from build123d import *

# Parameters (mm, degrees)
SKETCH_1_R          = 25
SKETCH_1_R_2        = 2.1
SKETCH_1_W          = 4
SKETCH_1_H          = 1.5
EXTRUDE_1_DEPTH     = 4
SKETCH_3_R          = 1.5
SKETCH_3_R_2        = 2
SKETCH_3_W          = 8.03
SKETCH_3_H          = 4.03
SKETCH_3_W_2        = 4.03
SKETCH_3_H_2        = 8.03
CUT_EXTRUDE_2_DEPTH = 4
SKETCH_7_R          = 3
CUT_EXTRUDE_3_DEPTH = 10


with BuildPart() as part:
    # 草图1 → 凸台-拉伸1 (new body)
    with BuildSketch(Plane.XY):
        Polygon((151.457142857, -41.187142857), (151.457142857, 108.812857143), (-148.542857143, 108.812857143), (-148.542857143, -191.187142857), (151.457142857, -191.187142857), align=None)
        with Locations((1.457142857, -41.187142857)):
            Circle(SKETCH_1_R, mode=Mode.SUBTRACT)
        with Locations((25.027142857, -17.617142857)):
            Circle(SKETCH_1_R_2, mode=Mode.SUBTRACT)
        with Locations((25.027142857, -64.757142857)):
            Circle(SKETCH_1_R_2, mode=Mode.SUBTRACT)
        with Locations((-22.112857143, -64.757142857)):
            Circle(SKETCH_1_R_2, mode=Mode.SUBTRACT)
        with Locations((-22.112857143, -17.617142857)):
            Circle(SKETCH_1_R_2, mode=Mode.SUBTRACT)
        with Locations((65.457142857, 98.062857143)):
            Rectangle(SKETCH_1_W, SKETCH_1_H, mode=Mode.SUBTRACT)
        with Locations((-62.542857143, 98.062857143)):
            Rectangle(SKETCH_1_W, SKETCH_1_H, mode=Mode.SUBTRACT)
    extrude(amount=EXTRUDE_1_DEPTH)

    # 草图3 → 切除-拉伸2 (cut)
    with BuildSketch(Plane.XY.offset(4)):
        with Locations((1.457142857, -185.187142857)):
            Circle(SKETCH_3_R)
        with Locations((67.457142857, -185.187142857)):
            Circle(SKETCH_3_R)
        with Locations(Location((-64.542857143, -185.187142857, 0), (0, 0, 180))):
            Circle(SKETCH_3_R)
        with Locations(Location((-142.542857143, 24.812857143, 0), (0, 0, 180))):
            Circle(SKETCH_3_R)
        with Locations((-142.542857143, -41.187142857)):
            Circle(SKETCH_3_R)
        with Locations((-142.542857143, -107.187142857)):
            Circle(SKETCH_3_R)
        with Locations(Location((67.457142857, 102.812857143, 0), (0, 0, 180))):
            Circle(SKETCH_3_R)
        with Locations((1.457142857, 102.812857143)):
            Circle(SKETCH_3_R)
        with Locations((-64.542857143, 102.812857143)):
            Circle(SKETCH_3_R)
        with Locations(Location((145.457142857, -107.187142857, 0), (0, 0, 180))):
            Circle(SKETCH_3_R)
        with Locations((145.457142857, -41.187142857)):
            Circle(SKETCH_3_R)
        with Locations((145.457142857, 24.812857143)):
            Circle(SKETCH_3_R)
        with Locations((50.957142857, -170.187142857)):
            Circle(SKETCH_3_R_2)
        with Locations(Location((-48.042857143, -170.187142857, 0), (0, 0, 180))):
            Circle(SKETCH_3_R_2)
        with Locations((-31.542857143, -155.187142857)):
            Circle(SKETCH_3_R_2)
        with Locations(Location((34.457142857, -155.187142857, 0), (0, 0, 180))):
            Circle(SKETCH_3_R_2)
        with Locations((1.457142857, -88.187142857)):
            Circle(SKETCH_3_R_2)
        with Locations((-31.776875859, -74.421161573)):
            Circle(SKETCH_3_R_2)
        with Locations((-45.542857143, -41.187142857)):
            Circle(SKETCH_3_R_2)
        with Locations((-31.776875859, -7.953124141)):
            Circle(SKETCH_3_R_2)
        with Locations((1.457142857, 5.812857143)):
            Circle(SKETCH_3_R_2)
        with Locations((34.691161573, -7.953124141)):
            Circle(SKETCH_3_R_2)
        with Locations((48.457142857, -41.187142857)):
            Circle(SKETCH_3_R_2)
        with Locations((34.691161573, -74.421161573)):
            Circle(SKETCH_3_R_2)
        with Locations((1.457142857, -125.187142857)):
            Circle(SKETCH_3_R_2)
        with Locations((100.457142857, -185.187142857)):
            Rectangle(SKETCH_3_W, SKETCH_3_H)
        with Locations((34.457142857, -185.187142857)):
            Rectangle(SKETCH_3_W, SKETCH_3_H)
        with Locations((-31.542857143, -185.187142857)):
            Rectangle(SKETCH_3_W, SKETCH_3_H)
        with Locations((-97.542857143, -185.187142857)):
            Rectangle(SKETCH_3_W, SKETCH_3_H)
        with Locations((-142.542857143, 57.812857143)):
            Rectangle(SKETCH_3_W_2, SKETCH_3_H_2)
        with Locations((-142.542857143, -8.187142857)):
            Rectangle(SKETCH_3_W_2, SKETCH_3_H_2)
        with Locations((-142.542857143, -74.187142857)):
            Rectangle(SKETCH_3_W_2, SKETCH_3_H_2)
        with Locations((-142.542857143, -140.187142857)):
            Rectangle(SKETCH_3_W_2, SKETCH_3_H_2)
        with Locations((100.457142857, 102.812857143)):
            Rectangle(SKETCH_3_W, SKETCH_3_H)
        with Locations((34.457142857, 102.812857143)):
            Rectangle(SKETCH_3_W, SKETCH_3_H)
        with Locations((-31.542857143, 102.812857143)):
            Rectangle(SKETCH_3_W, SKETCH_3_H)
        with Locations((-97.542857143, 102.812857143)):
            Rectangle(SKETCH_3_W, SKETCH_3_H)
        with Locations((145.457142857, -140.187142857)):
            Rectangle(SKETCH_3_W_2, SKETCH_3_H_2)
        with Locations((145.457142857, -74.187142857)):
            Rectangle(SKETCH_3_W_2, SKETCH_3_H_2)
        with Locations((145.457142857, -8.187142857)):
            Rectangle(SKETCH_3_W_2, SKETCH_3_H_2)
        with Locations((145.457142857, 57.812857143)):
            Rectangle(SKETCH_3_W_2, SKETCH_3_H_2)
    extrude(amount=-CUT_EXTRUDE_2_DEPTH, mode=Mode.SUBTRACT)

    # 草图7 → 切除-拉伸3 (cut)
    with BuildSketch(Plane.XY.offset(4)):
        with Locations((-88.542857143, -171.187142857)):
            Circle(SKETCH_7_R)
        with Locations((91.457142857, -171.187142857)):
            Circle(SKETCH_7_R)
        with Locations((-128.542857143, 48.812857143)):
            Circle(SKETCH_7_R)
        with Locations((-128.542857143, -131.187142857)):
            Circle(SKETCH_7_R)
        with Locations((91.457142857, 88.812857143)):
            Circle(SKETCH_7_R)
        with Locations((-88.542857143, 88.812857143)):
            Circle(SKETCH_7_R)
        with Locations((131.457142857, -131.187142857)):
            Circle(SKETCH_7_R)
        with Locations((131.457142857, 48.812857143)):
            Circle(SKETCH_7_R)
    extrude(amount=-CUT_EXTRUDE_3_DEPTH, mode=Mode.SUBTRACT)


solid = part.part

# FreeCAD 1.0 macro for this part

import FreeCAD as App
import Part
import Sketcher

V = App.Vector
Q = App.Units.Quantity

doc = App.newDocument("Part")
body = doc.addObject("PartDesign::Body", "Body")

sketch1 = body.newObject("Sketcher::SketchObject", "Sketch")
sketch1.AttachmentSupport = (doc.getObject("XY_Plane"), [""])
sketch1.MapMode = "FlatFace"
sketch1.addGeometry([
    Part.LineSegment(V(151.5, 108.8, 0), V(-148.5, 108.8, 0)),
    Part.LineSegment(V(-148.5, 108.8, 0), V(-148.5, -191.2, 0)),
    Part.LineSegment(V(-148.5, -191.2, 0), V(151.5, -191.2, 0)),
    Part.LineSegment(V(151.5, -191.2, 0), V(151.5, 108.8, 0)),
    Part.Circle(V(-22.1, -64.8, 0), V(0, 0, 1), 2.1),
    Part.Circle(V(-22.1, -17.6, 0), V(0, 0, 1), 2.1),
    Part.Circle(V(25, -64.8, 0), V(0, 0, 1), 2.1),
    Part.Circle(V(1.5, -41.2, 0), V(0, 0, 1), 25),
    Part.Circle(V(25, -17.6, 0), V(0, 0, 1), 2.1),
    Part.LineSegment(V(-60.5, 97.3, 0), V(-64.5, 97.3, 0)),
    Part.LineSegment(V(-64.5, 97.3, 0), V(-64.5, 98.8, 0)),
    Part.LineSegment(V(-64.5, 98.8, 0), V(-60.5, 98.8, 0)),
    Part.LineSegment(V(-60.5, 98.8, 0), V(-60.5, 97.3, 0)),
    Part.LineSegment(V(67.5, 97.3, 0), V(63.5, 97.3, 0)),
    Part.LineSegment(V(63.5, 97.3, 0), V(63.5, 98.8, 0)),
    Part.LineSegment(V(63.5, 98.8, 0), V(67.5, 98.8, 0)),
    Part.LineSegment(V(67.5, 98.8, 0), V(67.5, 97.3, 0)),
], False)
sketch1.addConstraint([
    Sketcher.Constraint("Coincident", 0, 2, 1, 1),
    Sketcher.Constraint("Coincident", 1, 2, 2, 1),
    Sketcher.Constraint("Coincident", 2, 2, 3, 1),
    Sketcher.Constraint("Coincident", 3, 2, 0, 1),
    Sketcher.Constraint("Coincident", 9, 2, 10, 1),
    Sketcher.Constraint("Coincident", 10, 2, 11, 1),
    Sketcher.Constraint("Coincident", 11, 2, 12, 1),
    Sketcher.Constraint("Coincident", 12, 2, 9, 1),
    Sketcher.Constraint("Coincident", 13, 2, 14, 1),
    Sketcher.Constraint("Coincident", 14, 2, 15, 1),
    Sketcher.Constraint("Coincident", 15, 2, 16, 1),
    Sketcher.Constraint("Coincident", 16, 2, 13, 1),
    Sketcher.Constraint("Horizontal", 0),
    Sketcher.Constraint("Vertical", 1),
    Sketcher.Constraint("Horizontal", 2),
    Sketcher.Constraint("Vertical", 3),
    Sketcher.Constraint("Horizontal", 9),
    Sketcher.Constraint("Vertical", 10),
    Sketcher.Constraint("Horizontal", 11),
    Sketcher.Constraint("Vertical", 12),
    Sketcher.Constraint("Horizontal", 13),
    Sketcher.Constraint("Vertical", 14),
    Sketcher.Constraint("Horizontal", 15),
    Sketcher.Constraint("Vertical", 16),
    Sketcher.Constraint("Equal", 4, 5),
    Sketcher.Constraint("Equal", 5, 6),
    Sketcher.Constraint("Equal", 6, 8),
    Sketcher.Constraint("Horizontal", 4, 3, 6, 3),
    Sketcher.Constraint("Horizontal", 5, 3, 8, 3),
    Sketcher.Constraint("Horizontal", 12, 2, 13, 2),
    Sketcher.Constraint("Horizontal", 11, 2, 14, 2),
    Sketcher.Constraint("Vertical", 4, 3, 5, 3),
    Sketcher.Constraint("Vertical", 6, 3, 8, 3),
    Sketcher.Constraint("Equal", 11, 13),
    Sketcher.Constraint("Equal", 2, 1),
    Sketcher.Constraint("Diameter", 7, Q("50 mm")),
    Sketcher.Constraint("Diameter", 4, Q("4.2 mm")),
    Sketcher.Constraint("DistanceX", 0, 2, 0, 1, Q("300 mm")),
    Sketcher.Constraint("DistanceX", 9, 2, 9, 1, Q("4 mm")),
    Sketcher.Constraint("DistanceY", 10, 1, 10, 2, Q("1.5 mm")),
    Sketcher.Constraint("DistanceX", 0, 2, 7, 3, Q("150 mm")),
    Sketcher.Constraint("DistanceY", 7, 3, 0, 2, Q("150 mm")),
    Sketcher.Constraint("DistanceX", 0, 2, 9, 2, Q("84 mm")),
    Sketcher.Constraint("DistanceY", 10, 2, 0, 2, Q("10 mm")),
    Sketcher.Constraint("DistanceX", 13, 2, 3, 2, Q("88 mm")),
    Sketcher.Constraint("DistanceY", 4, 3, 5, 3, Q("47.14 mm")),
    Sketcher.Constraint("DistanceX", 4, 3, 6, 3, Q("47.14 mm")),
    Sketcher.Constraint("DistanceX", 5, 3, 7, 3, Q("23.57 mm")),
    Sketcher.Constraint("DistanceY", 7, 3, 5, 3, Q("23.57 mm")),
    Sketcher.Constraint("DistanceX", 4, 3, -1, 1, Q("22.112857 mm")),
    Sketcher.Constraint("DistanceY", 4, 3, -1, 1, Q("64.757143 mm")),
])
pad1 = body.newObject("PartDesign::Pad", "Pad")
pad1.Profile = sketch1
pad1.Length = 4

sketch2 = body.newObject("Sketcher::SketchObject", "Sketch001")
sketch2.AttachmentSupport = (doc.getObject("XY_Plane"), [""])
sketch2.MapMode = "FlatFace"
sketch2.AttachmentOffset = App.Placement(V(0, 0, 4), App.Rotation())
sketch2.addGeometry([
    Part.Circle(V(1.5, -185.2, 0), V(0, 0, 1), 1.5),
    Part.Circle(V(67.5, -185.2, 0), V(0, 0, 1), 1.5),
    Part.Circle(V(-64.5, -185.2, 0), V(0, 0, 1), 1.5),
    Part.Circle(V(-142.5, 24.8, 0), V(0, 0, 1), 1.5),
    Part.Circle(V(-142.5, -41.2, 0), V(0, 0, 1), 1.5),
    Part.Circle(V(-142.5, -107.2, 0), V(0, 0, 1), 1.5),
    Part.Circle(V(67.5, 102.8, 0), V(0, 0, 1), 1.5),
    Part.Circle(V(1.5, 102.8, 0), V(0, 0, 1), 1.5),
    Part.Circle(V(-64.5, 102.8, 0), V(0, 0, 1), 1.5),
    Part.Circle(V(145.5, -107.2, 0), V(0, 0, 1), 1.5),
    Part.Circle(V(145.5, -41.2, 0), V(0, 0, 1), 1.5),
    Part.Circle(V(145.5, 24.8, 0), V(0, 0, 1), 1.5),
    Part.Circle(V(51, -170.2, 0), V(0, 0, 1), 2),
    Part.Circle(V(-48, -170.2, 0), V(0, 0, 1), 2),
    Part.Circle(V(-31.5, -155.2, 0), V(0, 0, 1), 2),
    Part.Circle(V(34.5, -155.2, 0), V(0, 0, 1), 2),
    Part.Circle(V(1.5, -88.2, 0), V(0, 0, 1), 2),
    Part.Circle(V(-31.8, -74.4, 0), V(0, 0, 1), 2),
    Part.Circle(V(-45.5, -41.2, 0), V(0, 0, 1), 2),
    Part.Circle(V(-31.8, -8, 0), V(0, 0, 1), 2),
    Part.Circle(V(1.5, 5.8, 0), V(0, 0, 1), 2),
    Part.Circle(V(34.7, -8, 0), V(0, 0, 1), 2),
    Part.Circle(V(48.5, -41.2, 0), V(0, 0, 1), 2),
    Part.Circle(V(34.7, -74.4, 0), V(0, 0, 1), 2),
    Part.Circle(V(1.5, -125.2, 0), V(0, 0, 1), 2),
    Part.LineSegment(V(96.4, -183.2, 0), V(96.4, -187.2, 0)),
    Part.LineSegment(V(96.4, -187.2, 0), V(104.5, -187.2, 0)),
    Part.LineSegment(V(104.5, -187.2, 0), V(104.5, -183.2, 0)),
    Part.LineSegment(V(104.5, -183.2, 0), V(96.4, -183.2, 0)),
    Part.LineSegment(V(30.4, -183.2, 0), V(30.4, -187.2, 0)),
    Part.LineSegment(V(30.4, -187.2, 0), V(38.5, -187.2, 0)),
    Part.LineSegment(V(38.5, -187.2, 0), V(38.5, -183.2, 0)),
    Part.LineSegment(V(38.5, -183.2, 0), V(30.4, -183.2, 0)),
    Part.LineSegment(V(-35.6, -183.2, 0), V(-35.6, -187.2, 0)),
    Part.LineSegment(V(-35.6, -187.2, 0), V(-27.5, -187.2, 0)),
    Part.LineSegment(V(-27.5, -187.2, 0), V(-27.5, -183.2, 0)),
    Part.LineSegment(V(-27.5, -183.2, 0), V(-35.6, -183.2, 0)),
    Part.LineSegment(V(-101.6, -183.2, 0), V(-101.6, -187.2, 0)),
    Part.LineSegment(V(-101.6, -187.2, 0), V(-93.5, -187.2, 0)),
    Part.LineSegment(V(-93.5, -187.2, 0), V(-93.5, -183.2, 0)),
    Part.LineSegment(V(-93.5, -183.2, 0), V(-101.6, -183.2, 0)),
    Part.LineSegment(V(-144.6, 61.8, 0), V(-144.6, 53.8, 0)),
    Part.LineSegment(V(-144.6, 53.8, 0), V(-140.5, 53.8, 0)),
    Part.LineSegment(V(-140.5, 53.8, 0), V(-140.5, 61.8, 0)),
    Part.LineSegment(V(-140.5, 61.8, 0), V(-144.6, 61.8, 0)),
    Part.LineSegment(V(-144.6, -4.2, 0), V(-144.6, -12.2, 0)),
    Part.LineSegment(V(-144.6, -12.2, 0), V(-140.5, -12.2, 0)),
    Part.LineSegment(V(-140.5, -12.2, 0), V(-140.5, -4.2, 0)),
    Part.LineSegment(V(-140.5, -4.2, 0), V(-144.6, -4.2, 0)),
    Part.LineSegment(V(-144.6, -70.2, 0), V(-144.6, -78.2, 0)),
    Part.LineSegment(V(-144.6, -78.2, 0), V(-140.5, -78.2, 0)),
    Part.LineSegment(V(-140.5, -78.2, 0), V(-140.5, -70.2, 0)),
    Part.LineSegment(V(-140.5, -70.2, 0), V(-144.6, -70.2, 0)),
    Part.LineSegment(V(-144.6, -136.2, 0), V(-144.6, -144.2, 0)),
    Part.LineSegment(V(-144.6, -144.2, 0), V(-140.5, -144.2, 0)),
    Part.LineSegment(V(-140.5, -144.2, 0), V(-140.5, -136.2, 0)),
    Part.LineSegment(V(-140.5, -136.2, 0), V(-144.6, -136.2, 0)),
    Part.LineSegment(V(96.4, 104.8, 0), V(96.4, 100.8, 0)),
    Part.LineSegment(V(96.4, 100.8, 0), V(104.5, 100.8, 0)),
    Part.LineSegment(V(104.5, 100.8, 0), V(104.5, 104.8, 0)),
    Part.LineSegment(V(104.5, 104.8, 0), V(96.4, 104.8, 0)),
    Part.LineSegment(V(30.4, 104.8, 0), V(30.4, 100.8, 0)),
    Part.LineSegment(V(30.4, 100.8, 0), V(38.5, 100.8, 0)),
    Part.LineSegment(V(38.5, 100.8, 0), V(38.5, 104.8, 0)),
    Part.LineSegment(V(38.5, 104.8, 0), V(30.4, 104.8, 0)),
    Part.LineSegment(V(-35.6, 104.8, 0), V(-35.6, 100.8, 0)),
    Part.LineSegment(V(-35.6, 100.8, 0), V(-27.5, 100.8, 0)),
    Part.LineSegment(V(-27.5, 100.8, 0), V(-27.5, 104.8, 0)),
    Part.LineSegment(V(-27.5, 104.8, 0), V(-35.6, 104.8, 0)),
    Part.LineSegment(V(-101.6, 104.8, 0), V(-101.6, 100.8, 0)),
    Part.LineSegment(V(-101.6, 100.8, 0), V(-93.5, 100.8, 0)),
    Part.LineSegment(V(-93.5, 100.8, 0), V(-93.5, 104.8, 0)),
    Part.LineSegment(V(-93.5, 104.8, 0), V(-101.6, 104.8, 0)),
    Part.LineSegment(V(143.4, -136.2, 0), V(143.4, -144.2, 0)),
    Part.LineSegment(V(143.4, -144.2, 0), V(147.5, -144.2, 0)),
    Part.LineSegment(V(147.5, -144.2, 0), V(147.5, -136.2, 0)),
    Part.LineSegment(V(147.5, -136.2, 0), V(143.4, -136.2, 0)),
    Part.LineSegment(V(143.4, -70.2, 0), V(143.4, -78.2, 0)),
    Part.LineSegment(V(143.4, -78.2, 0), V(147.5, -78.2, 0)),
    Part.LineSegment(V(147.5, -78.2, 0), V(147.5, -70.2, 0)),
    Part.LineSegment(V(147.5, -70.2, 0), V(143.4, -70.2, 0)),
    Part.LineSegment(V(143.4, -4.2, 0), V(143.4, -12.2, 0)),
    Part.LineSegment(V(143.4, -12.2, 0), V(147.5, -12.2, 0)),
    Part.LineSegment(V(147.5, -12.2, 0), V(147.5, -4.2, 0)),
    Part.LineSegment(V(147.5, -4.2, 0), V(143.4, -4.2, 0)),
    Part.LineSegment(V(143.4, 61.8, 0), V(143.4, 53.8, 0)),
    Part.LineSegment(V(143.4, 53.8, 0), V(147.5, 53.8, 0)),
    Part.LineSegment(V(147.5, 53.8, 0), V(147.5, 61.8, 0)),
    Part.LineSegment(V(147.5, 61.8, 0), V(143.4, 61.8, 0)),
], False)
sketch2.addConstraint([
    Sketcher.Constraint("Coincident", 25, 2, 26, 1),
    Sketcher.Constraint("Coincident", 26, 2, 27, 1),
    Sketcher.Constraint("Coincident", 27, 2, 28, 1),
    Sketcher.Constraint("Coincident", 28, 2, 25, 1),
    Sketcher.Constraint("Coincident", 29, 2, 30, 1),
    Sketcher.Constraint("Coincident", 30, 2, 31, 1),
    Sketcher.Constraint("Coincident", 31, 2, 32, 1),
    Sketcher.Constraint("Coincident", 32, 2, 29, 1),
    Sketcher.Constraint("Coincident", 33, 2, 34, 1),
    Sketcher.Constraint("Coincident", 34, 2, 35, 1),
    Sketcher.Constraint("Coincident", 35, 2, 36, 1),
    Sketcher.Constraint("Coincident", 36, 2, 33, 1),
    Sketcher.Constraint("Coincident", 37, 2, 38, 1),
    Sketcher.Constraint("Coincident", 38, 2, 39, 1),
    Sketcher.Constraint("Coincident", 39, 2, 40, 1),
    Sketcher.Constraint("Coincident", 40, 2, 37, 1),
    Sketcher.Constraint("Coincident", 41, 2, 42, 1),
    Sketcher.Constraint("Coincident", 42, 2, 43, 1),
    Sketcher.Constraint("Coincident", 43, 2, 44, 1),
    Sketcher.Constraint("Coincident", 44, 2, 41, 1),
    Sketcher.Constraint("Coincident", 45, 2, 46, 1),
    Sketcher.Constraint("Coincident", 46, 2, 47, 1),
    Sketcher.Constraint("Coincident", 47, 2, 48, 1),
    Sketcher.Constraint("Coincident", 48, 2, 45, 1),
    Sketcher.Constraint("Coincident", 49, 2, 50, 1),
    Sketcher.Constraint("Coincident", 50, 2, 51, 1),
    Sketcher.Constraint("Coincident", 51, 2, 52, 1),
    Sketcher.Constraint("Coincident", 52, 2, 49, 1),
    Sketcher.Constraint("Coincident", 53, 2, 54, 1),
    Sketcher.Constraint("Coincident", 54, 2, 55, 1),
    Sketcher.Constraint("Coincident", 55, 2, 56, 1),
    Sketcher.Constraint("Coincident", 56, 2, 53, 1),
    Sketcher.Constraint("Coincident", 57, 2, 58, 1),
    Sketcher.Constraint("Coincident", 58, 2, 59, 1),
    Sketcher.Constraint("Coincident", 59, 2, 60, 1),
    Sketcher.Constraint("Coincident", 60, 2, 57, 1),
    Sketcher.Constraint("Coincident", 61, 2, 62, 1),
    Sketcher.Constraint("Coincident", 62, 2, 63, 1),
    Sketcher.Constraint("Coincident", 63, 2, 64, 1),
    Sketcher.Constraint("Coincident", 64, 2, 61, 1),
    Sketcher.Constraint("Coincident", 65, 2, 66, 1),
    Sketcher.Constraint("Coincident", 66, 2, 67, 1),
    Sketcher.Constraint("Coincident", 67, 2, 68, 1),
    Sketcher.Constraint("Coincident", 68, 2, 65, 1),
    Sketcher.Constraint("Coincident", 69, 2, 70, 1),
    Sketcher.Constraint("Coincident", 70, 2, 71, 1),
    Sketcher.Constraint("Coincident", 71, 2, 72, 1),
    Sketcher.Constraint("Coincident", 72, 2, 69, 1),
    Sketcher.Constraint("Coincident", 73, 2, 74, 1),
    Sketcher.Constraint("Coincident", 74, 2, 75, 1),
    Sketcher.Constraint("Coincident", 75, 2, 76, 1),
    Sketcher.Constraint("Coincident", 76, 2, 73, 1),
    Sketcher.Constraint("Coincident", 77, 2, 78, 1),
    Sketcher.Constraint("Coincident", 78, 2, 79, 1),
    Sketcher.Constraint("Coincident", 79, 2, 80, 1),
    Sketcher.Constraint("Coincident", 80, 2, 77, 1),
    Sketcher.Constraint("Coincident", 81, 2, 82, 1),
    Sketcher.Constraint("Coincident", 82, 2, 83, 1),
    Sketcher.Constraint("Coincident", 83, 2, 84, 1),
    Sketcher.Constraint("Coincident", 84, 2, 81, 1),
    Sketcher.Constraint("Coincident", 85, 2, 86, 1),
    Sketcher.Constraint("Coincident", 86, 2, 87, 1),
    Sketcher.Constraint("Coincident", 87, 2, 88, 1),
    Sketcher.Constraint("Coincident", 88, 2, 85, 1),
    Sketcher.Constraint("Vertical", 25),
    Sketcher.Constraint("Horizontal", 26),
    Sketcher.Constraint("Vertical", 27),
    Sketcher.Constraint("Horizontal", 28),
    Sketcher.Constraint("Vertical", 29),
    Sketcher.Constraint("Horizontal", 30),
    Sketcher.Constraint("Vertical", 31),
    Sketcher.Constraint("Horizontal", 32),
    Sketcher.Constraint("Vertical", 33),
    Sketcher.Constraint("Horizontal", 34),
    Sketcher.Constraint("Vertical", 35),
    Sketcher.Constraint("Horizontal", 36),
    Sketcher.Constraint("Vertical", 37),
    Sketcher.Constraint("Horizontal", 38),
    Sketcher.Constraint("Vertical", 39),
    Sketcher.Constraint("Horizontal", 40),
    Sketcher.Constraint("Vertical", 41),
    Sketcher.Constraint("Horizontal", 42),
    Sketcher.Constraint("Vertical", 43),
    Sketcher.Constraint("Horizontal", 44),
    Sketcher.Constraint("Vertical", 45),
    Sketcher.Constraint("Horizontal", 46),
    Sketcher.Constraint("Vertical", 47),
    Sketcher.Constraint("Horizontal", 48),
    Sketcher.Constraint("Vertical", 49),
    Sketcher.Constraint("Horizontal", 50),
    Sketcher.Constraint("Vertical", 51),
    Sketcher.Constraint("Horizontal", 52),
    Sketcher.Constraint("Vertical", 53),
    Sketcher.Constraint("Horizontal", 54),
    Sketcher.Constraint("Vertical", 55),
    Sketcher.Constraint("Horizontal", 56),
    Sketcher.Constraint("Vertical", 57),
    Sketcher.Constraint("Horizontal", 58),
    Sketcher.Constraint("Vertical", 59),
    Sketcher.Constraint("Horizontal", 60),
    Sketcher.Constraint("Vertical", 61),
    Sketcher.Constraint("Horizontal", 62),
    Sketcher.Constraint("Vertical", 63),
    Sketcher.Constraint("Horizontal", 64),
    Sketcher.Constraint("Vertical", 65),
    Sketcher.Constraint("Horizontal", 66),
    Sketcher.Constraint("Vertical", 67),
    Sketcher.Constraint("Horizontal", 68),
    Sketcher.Constraint("Vertical", 69),
    Sketcher.Constraint("Horizontal", 70),
    Sketcher.Constraint("Vertical", 71),
    Sketcher.Constraint("Horizontal", 72),
    Sketcher.Constraint("Vertical", 73),
    Sketcher.Constraint("Horizontal", 74),
    Sketcher.Constraint("Vertical", 75),
    Sketcher.Constraint("Horizontal", 76),
    Sketcher.Constraint("Vertical", 77),
    Sketcher.Constraint("Horizontal", 78),
    Sketcher.Constraint("Vertical", 79),
    Sketcher.Constraint("Horizontal", 80),
    Sketcher.Constraint("Vertical", 81),
    Sketcher.Constraint("Horizontal", 82),
    Sketcher.Constraint("Vertical", 83),
    Sketcher.Constraint("Horizontal", 84),
    Sketcher.Constraint("Vertical", 85),
    Sketcher.Constraint("Horizontal", 86),
    Sketcher.Constraint("Vertical", 87),
    Sketcher.Constraint("Horizontal", 88),
    Sketcher.Constraint("Equal", 0, 1),
    Sketcher.Constraint("Equal", 1, 2),
    Sketcher.Constraint("Equal", 2, 3),
    Sketcher.Constraint("Equal", 3, 4),
    Sketcher.Constraint("Equal", 4, 5),
    Sketcher.Constraint("Equal", 5, 6),
    Sketcher.Constraint("Equal", 6, 7),
    Sketcher.Constraint("Equal", 7, 8),
    Sketcher.Constraint("Equal", 8, 9),
    Sketcher.Constraint("Equal", 9, 10),
    Sketcher.Constraint("Equal", 10, 11),
    Sketcher.Constraint("Equal", 12, 13),
    Sketcher.Constraint("Equal", 13, 14),
    Sketcher.Constraint("Equal", 14, 15),
    Sketcher.Constraint("Equal", 15, 16),
    Sketcher.Constraint("Equal", 16, 17),
    Sketcher.Constraint("Equal", 17, 18),
    Sketcher.Constraint("Equal", 18, 19),
    Sketcher.Constraint("Equal", 19, 20),
    Sketcher.Constraint("Equal", 20, 21),
    Sketcher.Constraint("Equal", 21, 22),
    Sketcher.Constraint("Equal", 22, 23),
    Sketcher.Constraint("Equal", 23, 24),
    Sketcher.Constraint("Horizontal", 0, 3, 1, 3),
    Sketcher.Constraint("Horizontal", 1, 3, 2, 3),
    Sketcher.Constraint("Horizontal", 6, 3, 7, 3),
    Sketcher.Constraint("Horizontal", 7, 3, 8, 3),
    Sketcher.Constraint("Horizontal", 5, 3, 9, 3),
    Sketcher.Constraint("Horizontal", 4, 3, 10, 3),
    Sketcher.Constraint("Horizontal", 3, 3, 11, 3),
    Sketcher.Constraint("Horizontal", 12, 3, 13, 3),
    Sketcher.Constraint("Horizontal", 14, 3, 15, 3),
    Sketcher.Constraint("Horizontal", 10, 3, 18, 3),
    Sketcher.Constraint("Horizontal", 19, 3, 21, 3),
    Sketcher.Constraint("Horizontal", 18, 3, 22, 3),
    Sketcher.Constraint("Horizontal", 17, 3, 23, 3),
    Sketcher.Constraint("Horizontal", 26, 2, 29, 2),
    Sketcher.Constraint("Horizontal", 28, 2, 31, 2),
    Sketcher.Constraint("Horizontal", 30, 2, 33, 2),
    Sketcher.Constraint("Horizontal", 32, 2, 35, 2),
    Sketcher.Constraint("Horizontal", 34, 2, 37, 2),
    Sketcher.Constraint("Horizontal", 36, 2, 39, 2),
    Sketcher.Constraint("Horizontal", 58, 2, 61, 2),
    Sketcher.Constraint("Horizontal", 60, 2, 63, 2),
    Sketcher.Constraint("Horizontal", 62, 2, 65, 2),
    Sketcher.Constraint("Horizontal", 64, 2, 67, 2),
    Sketcher.Constraint("Horizontal", 66, 2, 69, 2),
    Sketcher.Constraint("Horizontal", 68, 2, 71, 2),
    Sketcher.Constraint("Horizontal", 54, 2, 73, 2),
    Sketcher.Constraint("Horizontal", 56, 2, 75, 2),
    Sketcher.Constraint("Horizontal", 50, 2, 77, 2),
    Sketcher.Constraint("Horizontal", 52, 2, 79, 2),
    Sketcher.Constraint("Horizontal", 46, 2, 81, 2),
    Sketcher.Constraint("Horizontal", 48, 2, 83, 2),
    Sketcher.Constraint("Horizontal", 42, 2, 85, 2),
    Sketcher.Constraint("Horizontal", 44, 2, 87, 2),
    Sketcher.Constraint("Vertical", 3, 3, 4, 3),
    Sketcher.Constraint("Vertical", 4, 3, 5, 3),
    Sketcher.Constraint("Vertical", 1, 3, 6, 3),
    Sketcher.Constraint("Vertical", 0, 3, 7, 3),
    Sketcher.Constraint("Vertical", 2, 3, 8, 3),
    Sketcher.Constraint("Vertical", 9, 3, 10, 3),
    Sketcher.Constraint("Vertical", 10, 3, 11, 3),
    Sketcher.Constraint("Vertical", 7, 3, 16, 3),
    Sketcher.Constraint("Vertical", 17, 3, 19, 3),
    Sketcher.Constraint("Vertical", 16, 3, 20, 3),
    Sketcher.Constraint("Vertical", 21, 3, 23, 3),
    Sketcher.Constraint("Vertical", 20, 3, 24, 3),
    Sketcher.Constraint("Vertical", 44, 2, 45, 2),
    Sketcher.Constraint("Vertical", 43, 2, 46, 2),
    Sketcher.Constraint("Vertical", 48, 2, 49, 2),
    Sketcher.Constraint("Vertical", 47, 2, 50, 2),
    Sketcher.Constraint("Vertical", 52, 2, 53, 2),
    Sketcher.Constraint("Vertical", 51, 2, 54, 2),
    Sketcher.Constraint("Vertical", 28, 2, 57, 2),
    Sketcher.Constraint("Vertical", 27, 2, 58, 2),
    Sketcher.Constraint("Vertical", 32, 2, 61, 2),
    Sketcher.Constraint("Vertical", 31, 2, 62, 2),
    Sketcher.Constraint("Vertical", 36, 2, 65, 2),
    Sketcher.Constraint("Vertical", 35, 2, 66, 2),
    Sketcher.Constraint("Vertical", 40, 2, 69, 2),
    Sketcher.Constraint("Vertical", 39, 2, 70, 2),
    Sketcher.Constraint("Vertical", 76, 2, 77, 2),
    Sketcher.Constraint("Vertical", 75, 2, 78, 2),
    Sketcher.Constraint("Vertical", 80, 2, 81, 2),
    Sketcher.Constraint("Vertical", 79, 2, 82, 2),
    Sketcher.Constraint("Vertical", 84, 2, 85, 2),
    Sketcher.Constraint("Vertical", 83, 2, 86, 2),
    Sketcher.Constraint("Equal", 28, 30),
    Sketcher.Constraint("Equal", 32, 34),
    Sketcher.Constraint("Equal", 36, 38),
    Sketcher.Constraint("Equal", 56, 74),
    Sketcher.Constraint("Equal", 88, 25),
    Sketcher.Constraint("Equal", 72, 41),
    Sketcher.Constraint("Equal", 43, 45),
    Sketcher.Constraint("Equal", 47, 49),
    Sketcher.Constraint("Equal", 51, 53),
    Sketcher.Constraint("Equal", 39, 57),
    Sketcher.Constraint("Diameter", 0, Q("3 mm")),
    Sketcher.Constraint("Diameter", 12, Q("4 mm")),
    Sketcher.Constraint("DistanceX", 26, 1, 26, 2, Q("8.03 mm")),
    Sketcher.Constraint("DistanceX", 42, 1, 42, 2, Q("4.03 mm")),
    Sketcher.Constraint("DistanceY", 17, 3, -1, 1, Q("74.421162 mm")),
    Sketcher.Constraint("DistanceX", -1, 1, 21, 3, Q("34.691162 mm")),
    Sketcher.Constraint("DistanceX", -1, 1, 0, 3, Q("1.457143 mm")),
    Sketcher.Constraint("DistanceY", 0, 3, -1, 1, Q("185.187143 mm")),
    Sketcher.Constraint("DistanceX", -1, 1, 1, 3, Q("67.457143 mm")),
    Sketcher.Constraint("DistanceX", 2, 3, -1, 1, Q("64.542857 mm")),
    Sketcher.Constraint("DistanceX", 3, 3, -1, 1, Q("142.542857 mm")),
    Sketcher.Constraint("DistanceY", -1, 1, 3, 3, Q("24.812857 mm")),
    Sketcher.Constraint("DistanceY", 4, 3, -1, 1, Q("41.187143 mm")),
    Sketcher.Constraint("DistanceY", 5, 3, -1, 1, Q("107.187143 mm")),
    Sketcher.Constraint("DistanceY", -1, 1, 6, 3, Q("102.812857 mm")),
    Sketcher.Constraint("DistanceX", -1, 1, 9, 3, Q("145.457143 mm")),
    Sketcher.Constraint("DistanceX", -1, 1, 12, 3, Q("50.957143 mm")),
    Sketcher.Constraint("DistanceY", 12, 3, -1, 1, Q("170.187143 mm")),
    Sketcher.Constraint("DistanceX", 13, 3, -1, 1, Q("48.042857 mm")),
    Sketcher.Constraint("DistanceX", 14, 3, -1, 1, Q("31.542857 mm")),
    Sketcher.Constraint("DistanceY", 14, 3, -1, 1, Q("155.187143 mm")),
    Sketcher.Constraint("DistanceX", -1, 1, 15, 3, Q("34.457143 mm")),
    Sketcher.Constraint("DistanceY", 16, 3, -1, 1, Q("88.187143 mm")),
    Sketcher.Constraint("DistanceX", 17, 3, -1, 1, Q("31.776876 mm")),
    Sketcher.Constraint("DistanceX", 18, 3, -1, 1, Q("45.542857 mm")),
    Sketcher.Constraint("DistanceY", 19, 3, -1, 1, Q("7.953124 mm")),
    Sketcher.Constraint("DistanceY", -1, 1, 20, 3, Q("5.812857 mm")),
    Sketcher.Constraint("DistanceX", -1, 1, 22, 3, Q("48.457143 mm")),
    Sketcher.Constraint("DistanceY", 24, 3, -1, 1, Q("125.187143 mm")),
    Sketcher.Constraint("DistanceX", -1, 1, 25, 2, Q("96.442143 mm")),
    Sketcher.Constraint("DistanceY", 25, 2, -1, 1, Q("187.202143 mm")),
    Sketcher.Constraint("DistanceX", -1, 1, 29, 2, Q("30.442143 mm")),
    Sketcher.Constraint("DistanceX", 33, 2, -1, 1, Q("35.557857 mm")),
    Sketcher.Constraint("DistanceX", 37, 2, -1, 1, Q("101.557857 mm")),
    Sketcher.Constraint("DistanceX", 41, 2, -1, 1, Q("144.557857 mm")),
    Sketcher.Constraint("DistanceY", -1, 1, 41, 2, Q("53.797857 mm")),
    Sketcher.Constraint("DistanceY", 45, 2, -1, 1, Q("12.202143 mm")),
    Sketcher.Constraint("DistanceY", 49, 2, -1, 1, Q("78.202143 mm")),
    Sketcher.Constraint("DistanceY", 53, 2, -1, 1, Q("144.202143 mm")),
    Sketcher.Constraint("DistanceY", -1, 1, 57, 2, Q("100.797857 mm")),
    Sketcher.Constraint("DistanceX", -1, 1, 73, 2, Q("143.442143 mm")),
])
pocket1 = body.newObject("PartDesign::Pocket", "Pocket")
pocket1.Profile = sketch2
pocket1.Length = 4

sketch3 = body.newObject("Sketcher::SketchObject", "Sketch002")
sketch3.AttachmentSupport = (doc.getObject("XY_Plane"), [""])
sketch3.MapMode = "FlatFace"
sketch3.AttachmentOffset = App.Placement(V(0, 0, 4), App.Rotation())
sketch3.addGeometry([
    Part.Circle(V(-88.5, -171.2, 0), V(0, 0, 1), 3),
    Part.Circle(V(91.5, -171.2, 0), V(0, 0, 1), 3),
    Part.Circle(V(-128.5, 48.8, 0), V(0, 0, 1), 3),
    Part.Circle(V(-128.5, -131.2, 0), V(0, 0, 1), 3),
    Part.Circle(V(91.5, 88.8, 0), V(0, 0, 1), 3),
    Part.Circle(V(-88.5, 88.8, 0), V(0, 0, 1), 3),
    Part.Circle(V(131.5, -131.2, 0), V(0, 0, 1), 3),
    Part.Circle(V(131.5, 48.8, 0), V(0, 0, 1), 3),
], False)
sketch3.addConstraint([
    Sketcher.Constraint("Equal", 0, 1),
    Sketcher.Constraint("Equal", 1, 2),
    Sketcher.Constraint("Equal", 2, 3),
    Sketcher.Constraint("Equal", 3, 4),
    Sketcher.Constraint("Equal", 4, 5),
    Sketcher.Constraint("Equal", 5, 6),
    Sketcher.Constraint("Equal", 6, 7),
    Sketcher.Constraint("Horizontal", 0, 3, 1, 3),
    Sketcher.Constraint("Horizontal", 4, 3, 5, 3),
    Sketcher.Constraint("Horizontal", 3, 3, 6, 3),
    Sketcher.Constraint("Horizontal", 2, 3, 7, 3),
    Sketcher.Constraint("Vertical", 2, 3, 3, 3),
    Sketcher.Constraint("Vertical", 1, 3, 4, 3),
    Sketcher.Constraint("Vertical", 0, 3, 5, 3),
    Sketcher.Constraint("Vertical", 6, 3, 7, 3),
    Sketcher.Constraint("Diameter", 0, Q("6 mm")),
    Sketcher.Constraint("DistanceX", 0, 3, 1, 3, Q("180 mm")),
    Sketcher.Constraint("DistanceX", 2, 3, 0, 3, Q("40 mm")),
    Sketcher.Constraint("DistanceY", 0, 3, 2, 3, Q("220 mm")),
    Sketcher.Constraint("DistanceY", 0, 3, 3, 3, Q("40 mm")),
    Sketcher.Constraint("DistanceY", 2, 3, 4, 3, Q("40 mm")),
    Sketcher.Constraint("DistanceX", 1, 3, 6, 3, Q("40 mm")),
    Sketcher.Constraint("DistanceX", 0, 3, -1, 1, Q("88.542857 mm")),
    Sketcher.Constraint("DistanceY", 0, 3, -1, 1, Q("171.187143 mm")),
])
pocket2 = body.newObject("PartDesign::Pocket", "Pocket001")
pocket2.Profile = sketch3
pocket2.Length = 10

doc.recompute()
